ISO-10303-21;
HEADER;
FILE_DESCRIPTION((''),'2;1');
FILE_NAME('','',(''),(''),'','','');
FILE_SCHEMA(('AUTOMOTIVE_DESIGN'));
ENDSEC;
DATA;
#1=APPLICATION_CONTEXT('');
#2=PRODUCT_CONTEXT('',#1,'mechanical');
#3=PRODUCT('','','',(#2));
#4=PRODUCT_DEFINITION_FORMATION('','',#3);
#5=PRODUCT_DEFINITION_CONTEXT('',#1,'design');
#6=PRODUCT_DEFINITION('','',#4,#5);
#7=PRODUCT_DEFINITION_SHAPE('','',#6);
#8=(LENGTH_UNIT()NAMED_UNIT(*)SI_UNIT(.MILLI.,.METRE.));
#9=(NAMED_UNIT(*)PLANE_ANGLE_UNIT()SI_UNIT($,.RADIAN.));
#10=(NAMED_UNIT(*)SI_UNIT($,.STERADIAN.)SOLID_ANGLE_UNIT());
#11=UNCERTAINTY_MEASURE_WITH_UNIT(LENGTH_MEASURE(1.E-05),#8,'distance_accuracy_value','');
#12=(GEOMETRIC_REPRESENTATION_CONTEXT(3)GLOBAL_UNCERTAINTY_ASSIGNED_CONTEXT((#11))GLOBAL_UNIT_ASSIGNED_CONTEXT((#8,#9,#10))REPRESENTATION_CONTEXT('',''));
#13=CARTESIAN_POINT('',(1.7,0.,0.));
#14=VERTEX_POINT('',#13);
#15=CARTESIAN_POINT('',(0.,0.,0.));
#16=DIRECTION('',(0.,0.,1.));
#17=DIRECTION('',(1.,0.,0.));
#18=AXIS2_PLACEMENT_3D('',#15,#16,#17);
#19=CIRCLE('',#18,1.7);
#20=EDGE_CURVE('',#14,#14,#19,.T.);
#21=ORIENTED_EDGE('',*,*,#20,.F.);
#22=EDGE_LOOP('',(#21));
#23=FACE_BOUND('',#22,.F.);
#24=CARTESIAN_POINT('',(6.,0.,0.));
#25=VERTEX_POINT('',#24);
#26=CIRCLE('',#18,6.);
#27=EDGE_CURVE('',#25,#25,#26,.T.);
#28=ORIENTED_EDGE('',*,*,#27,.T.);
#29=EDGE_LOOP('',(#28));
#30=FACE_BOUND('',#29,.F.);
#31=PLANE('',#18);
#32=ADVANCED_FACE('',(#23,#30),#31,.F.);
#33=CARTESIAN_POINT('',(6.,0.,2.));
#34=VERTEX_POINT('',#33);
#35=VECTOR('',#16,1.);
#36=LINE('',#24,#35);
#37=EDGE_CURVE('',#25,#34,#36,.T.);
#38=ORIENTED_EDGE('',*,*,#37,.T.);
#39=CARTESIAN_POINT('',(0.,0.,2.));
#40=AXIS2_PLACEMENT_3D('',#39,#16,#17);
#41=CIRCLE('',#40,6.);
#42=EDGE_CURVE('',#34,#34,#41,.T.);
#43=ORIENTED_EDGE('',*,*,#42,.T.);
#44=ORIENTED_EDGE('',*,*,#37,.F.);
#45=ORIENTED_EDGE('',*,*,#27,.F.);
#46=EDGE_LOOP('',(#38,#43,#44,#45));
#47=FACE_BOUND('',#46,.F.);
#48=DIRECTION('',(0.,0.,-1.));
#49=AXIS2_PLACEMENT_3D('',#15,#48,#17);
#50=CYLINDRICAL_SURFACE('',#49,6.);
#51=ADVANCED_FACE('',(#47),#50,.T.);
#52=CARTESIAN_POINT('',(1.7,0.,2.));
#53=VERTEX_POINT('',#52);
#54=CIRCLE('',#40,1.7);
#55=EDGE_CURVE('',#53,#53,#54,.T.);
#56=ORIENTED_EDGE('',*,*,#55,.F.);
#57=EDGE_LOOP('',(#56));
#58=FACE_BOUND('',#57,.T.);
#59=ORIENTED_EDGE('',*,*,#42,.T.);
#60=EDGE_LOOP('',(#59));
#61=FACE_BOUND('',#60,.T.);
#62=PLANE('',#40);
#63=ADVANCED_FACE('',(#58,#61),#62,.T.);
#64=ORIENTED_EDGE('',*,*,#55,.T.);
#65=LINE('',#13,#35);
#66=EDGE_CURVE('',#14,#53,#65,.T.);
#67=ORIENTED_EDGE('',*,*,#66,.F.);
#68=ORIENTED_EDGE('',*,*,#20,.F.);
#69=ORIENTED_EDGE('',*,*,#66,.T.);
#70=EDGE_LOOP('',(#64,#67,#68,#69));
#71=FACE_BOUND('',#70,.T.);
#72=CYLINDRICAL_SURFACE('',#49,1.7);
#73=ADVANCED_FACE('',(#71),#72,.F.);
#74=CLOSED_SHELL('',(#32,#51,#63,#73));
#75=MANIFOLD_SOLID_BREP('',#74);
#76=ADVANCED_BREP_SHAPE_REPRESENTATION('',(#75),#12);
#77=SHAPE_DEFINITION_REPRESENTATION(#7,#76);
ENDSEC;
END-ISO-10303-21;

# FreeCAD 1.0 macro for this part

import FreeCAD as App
import Part
import Sketcher

V = App.Vector
Q = App.Units.Quantity

doc = App.newDocument("Part")
body = doc.addObject("PartDesign::Body", "Body")

sketch1 = doc.addObject("Sketcher::SketchObject", "Sketch")
body.addObject(sketch1)
sketch1.AttachmentSupport = (doc.XY_Plane, [""])
sketch1.MapMode = "FlatFace"
sketch1.addGeometry(Part.Circle(V(0, 0, 0), V(0, 0, 1), 6), False)
sketch1.addGeometry(Part.Circle(V(0, 0, 0), V(0, 0, 1), 1.7), False)
sketch1.addConstraint(Sketcher.Constraint("Coincident", 0, 3, -1, 1))
sketch1.addConstraint(Sketcher.Constraint("Coincident", 1, 3, -1, 1))
sketch1.addConstraint(Sketcher.Constraint("Diameter", 0, Q("12 mm")))
sketch1.addConstraint(Sketcher.Constraint("Diameter", 1, Q("3.4 mm")))
pad1 = doc.addObject("PartDesign::Pad", "Pad")
body.addObject(pad1)
pad1.Profile = sketch1
pad1.Length = 2

doc.recompute()
